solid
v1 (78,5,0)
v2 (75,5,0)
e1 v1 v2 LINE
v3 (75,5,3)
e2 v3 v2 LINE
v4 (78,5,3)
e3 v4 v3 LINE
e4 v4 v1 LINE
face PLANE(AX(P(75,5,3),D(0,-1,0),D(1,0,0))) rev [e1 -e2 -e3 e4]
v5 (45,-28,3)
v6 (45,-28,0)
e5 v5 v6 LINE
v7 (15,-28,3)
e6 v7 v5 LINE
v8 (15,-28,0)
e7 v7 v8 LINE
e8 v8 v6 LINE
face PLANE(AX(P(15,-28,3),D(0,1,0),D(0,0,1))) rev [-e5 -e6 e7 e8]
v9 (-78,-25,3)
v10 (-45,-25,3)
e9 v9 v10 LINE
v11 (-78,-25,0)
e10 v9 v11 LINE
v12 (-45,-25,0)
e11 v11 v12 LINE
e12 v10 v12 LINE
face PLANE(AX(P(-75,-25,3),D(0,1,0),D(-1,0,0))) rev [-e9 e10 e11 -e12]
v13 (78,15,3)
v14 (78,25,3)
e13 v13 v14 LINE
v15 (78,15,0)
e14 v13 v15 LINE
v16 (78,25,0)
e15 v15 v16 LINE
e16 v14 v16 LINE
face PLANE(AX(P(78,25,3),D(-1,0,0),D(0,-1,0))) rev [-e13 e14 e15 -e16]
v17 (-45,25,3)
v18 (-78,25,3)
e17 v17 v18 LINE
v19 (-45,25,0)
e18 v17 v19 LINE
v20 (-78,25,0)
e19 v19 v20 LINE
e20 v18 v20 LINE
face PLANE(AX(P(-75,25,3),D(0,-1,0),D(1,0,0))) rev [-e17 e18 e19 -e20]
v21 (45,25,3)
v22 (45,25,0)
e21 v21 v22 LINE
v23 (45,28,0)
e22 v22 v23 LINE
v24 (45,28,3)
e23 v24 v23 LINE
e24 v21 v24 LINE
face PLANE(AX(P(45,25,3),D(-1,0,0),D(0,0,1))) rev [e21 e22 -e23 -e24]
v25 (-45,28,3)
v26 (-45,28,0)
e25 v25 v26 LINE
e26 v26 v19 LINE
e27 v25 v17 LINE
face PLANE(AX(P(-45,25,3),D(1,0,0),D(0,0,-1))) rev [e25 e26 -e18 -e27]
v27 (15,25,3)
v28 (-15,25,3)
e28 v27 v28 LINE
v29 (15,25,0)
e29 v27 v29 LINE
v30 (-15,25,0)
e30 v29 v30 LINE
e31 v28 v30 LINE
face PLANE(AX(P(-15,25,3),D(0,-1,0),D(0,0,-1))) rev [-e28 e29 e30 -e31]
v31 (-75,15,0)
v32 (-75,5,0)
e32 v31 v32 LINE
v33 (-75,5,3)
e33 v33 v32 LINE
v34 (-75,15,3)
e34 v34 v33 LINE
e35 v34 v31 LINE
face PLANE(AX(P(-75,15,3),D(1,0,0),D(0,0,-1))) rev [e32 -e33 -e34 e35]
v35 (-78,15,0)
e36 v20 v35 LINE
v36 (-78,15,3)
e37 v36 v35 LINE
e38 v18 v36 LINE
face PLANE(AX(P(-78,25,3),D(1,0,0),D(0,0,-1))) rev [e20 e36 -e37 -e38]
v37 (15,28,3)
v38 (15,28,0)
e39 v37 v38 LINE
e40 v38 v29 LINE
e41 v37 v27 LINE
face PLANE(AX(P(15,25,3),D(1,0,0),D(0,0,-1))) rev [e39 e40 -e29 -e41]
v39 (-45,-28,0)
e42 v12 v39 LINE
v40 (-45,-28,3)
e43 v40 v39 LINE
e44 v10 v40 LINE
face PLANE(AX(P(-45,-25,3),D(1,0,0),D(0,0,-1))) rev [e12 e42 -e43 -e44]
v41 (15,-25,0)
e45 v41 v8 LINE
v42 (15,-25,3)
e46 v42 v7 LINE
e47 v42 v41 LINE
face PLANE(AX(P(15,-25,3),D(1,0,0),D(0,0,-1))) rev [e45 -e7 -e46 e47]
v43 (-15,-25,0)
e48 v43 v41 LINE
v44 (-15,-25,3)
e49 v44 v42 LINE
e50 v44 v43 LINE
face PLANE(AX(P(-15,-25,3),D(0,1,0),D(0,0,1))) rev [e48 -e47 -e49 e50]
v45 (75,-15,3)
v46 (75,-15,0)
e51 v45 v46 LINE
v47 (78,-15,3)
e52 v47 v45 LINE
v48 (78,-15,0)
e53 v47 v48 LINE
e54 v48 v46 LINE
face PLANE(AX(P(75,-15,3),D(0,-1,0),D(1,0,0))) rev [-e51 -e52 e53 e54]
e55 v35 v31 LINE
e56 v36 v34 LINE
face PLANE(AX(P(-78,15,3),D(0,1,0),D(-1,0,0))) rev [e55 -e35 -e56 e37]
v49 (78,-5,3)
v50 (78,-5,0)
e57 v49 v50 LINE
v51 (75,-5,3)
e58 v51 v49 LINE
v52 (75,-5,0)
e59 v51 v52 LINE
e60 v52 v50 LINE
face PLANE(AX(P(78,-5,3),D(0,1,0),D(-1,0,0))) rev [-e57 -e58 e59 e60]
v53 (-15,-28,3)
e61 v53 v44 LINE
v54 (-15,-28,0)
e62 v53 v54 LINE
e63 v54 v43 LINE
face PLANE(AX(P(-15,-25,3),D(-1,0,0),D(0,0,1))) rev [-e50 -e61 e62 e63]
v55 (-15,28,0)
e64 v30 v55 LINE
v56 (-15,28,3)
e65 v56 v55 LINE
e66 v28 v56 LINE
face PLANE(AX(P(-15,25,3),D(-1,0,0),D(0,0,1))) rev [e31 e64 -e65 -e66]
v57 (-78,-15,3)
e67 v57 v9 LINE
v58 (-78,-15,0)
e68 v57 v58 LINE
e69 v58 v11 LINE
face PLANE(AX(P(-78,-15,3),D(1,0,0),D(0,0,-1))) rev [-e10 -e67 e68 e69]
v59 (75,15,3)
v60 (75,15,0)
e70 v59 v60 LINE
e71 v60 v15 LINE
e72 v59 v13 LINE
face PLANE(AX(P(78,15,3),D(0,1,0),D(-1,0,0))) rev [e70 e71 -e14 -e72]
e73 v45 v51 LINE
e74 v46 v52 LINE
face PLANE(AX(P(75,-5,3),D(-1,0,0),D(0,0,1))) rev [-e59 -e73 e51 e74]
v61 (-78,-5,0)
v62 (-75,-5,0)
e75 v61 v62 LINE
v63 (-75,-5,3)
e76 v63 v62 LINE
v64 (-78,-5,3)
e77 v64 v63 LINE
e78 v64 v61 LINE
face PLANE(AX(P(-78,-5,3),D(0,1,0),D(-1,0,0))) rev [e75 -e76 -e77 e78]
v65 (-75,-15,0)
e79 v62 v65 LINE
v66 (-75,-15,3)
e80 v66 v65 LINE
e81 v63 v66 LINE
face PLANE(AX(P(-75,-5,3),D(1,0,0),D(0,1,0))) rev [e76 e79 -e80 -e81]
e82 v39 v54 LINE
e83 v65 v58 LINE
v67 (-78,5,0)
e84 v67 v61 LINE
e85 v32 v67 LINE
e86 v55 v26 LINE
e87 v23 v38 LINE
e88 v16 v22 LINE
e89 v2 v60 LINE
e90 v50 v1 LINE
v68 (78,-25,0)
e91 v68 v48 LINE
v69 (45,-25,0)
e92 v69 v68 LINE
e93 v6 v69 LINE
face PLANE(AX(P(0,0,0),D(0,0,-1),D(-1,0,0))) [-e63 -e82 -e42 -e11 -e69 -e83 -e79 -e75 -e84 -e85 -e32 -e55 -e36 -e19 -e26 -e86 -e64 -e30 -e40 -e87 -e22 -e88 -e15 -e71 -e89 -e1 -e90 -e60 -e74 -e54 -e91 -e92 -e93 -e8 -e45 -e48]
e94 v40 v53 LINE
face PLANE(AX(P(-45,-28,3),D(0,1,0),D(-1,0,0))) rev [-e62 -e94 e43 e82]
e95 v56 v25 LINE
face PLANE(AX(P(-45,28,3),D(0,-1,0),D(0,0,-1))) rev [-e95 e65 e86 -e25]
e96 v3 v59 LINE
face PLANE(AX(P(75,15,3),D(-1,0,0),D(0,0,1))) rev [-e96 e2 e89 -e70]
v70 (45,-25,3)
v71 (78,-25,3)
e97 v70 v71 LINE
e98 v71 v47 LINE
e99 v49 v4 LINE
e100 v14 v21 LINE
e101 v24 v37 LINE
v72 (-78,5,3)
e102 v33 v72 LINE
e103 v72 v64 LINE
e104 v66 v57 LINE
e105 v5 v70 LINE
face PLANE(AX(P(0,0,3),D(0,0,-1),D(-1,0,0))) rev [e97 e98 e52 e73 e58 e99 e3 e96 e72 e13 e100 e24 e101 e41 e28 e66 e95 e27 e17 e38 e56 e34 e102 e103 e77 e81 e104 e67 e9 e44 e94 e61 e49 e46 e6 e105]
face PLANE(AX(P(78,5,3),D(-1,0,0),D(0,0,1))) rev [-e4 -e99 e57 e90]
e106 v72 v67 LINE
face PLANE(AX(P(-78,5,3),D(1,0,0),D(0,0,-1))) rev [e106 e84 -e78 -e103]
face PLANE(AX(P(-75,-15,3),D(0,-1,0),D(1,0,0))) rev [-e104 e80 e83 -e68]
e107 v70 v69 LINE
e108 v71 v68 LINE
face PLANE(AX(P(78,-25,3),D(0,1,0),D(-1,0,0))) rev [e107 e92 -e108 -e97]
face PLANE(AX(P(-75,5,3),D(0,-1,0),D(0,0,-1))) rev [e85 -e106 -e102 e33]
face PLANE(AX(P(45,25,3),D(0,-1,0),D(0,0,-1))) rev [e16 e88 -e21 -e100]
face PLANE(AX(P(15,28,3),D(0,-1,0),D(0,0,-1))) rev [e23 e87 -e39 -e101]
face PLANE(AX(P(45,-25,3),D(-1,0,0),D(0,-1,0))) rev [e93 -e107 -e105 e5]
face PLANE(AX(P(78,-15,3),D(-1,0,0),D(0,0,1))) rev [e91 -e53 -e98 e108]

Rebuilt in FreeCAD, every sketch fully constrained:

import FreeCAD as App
import Part
import Sketcher


def add_polygon(sketch, points):
    """Adds a closed chain of lines whose ends are joined by coincident constraints."""
    first, n = sketch.GeometryCount, len(points)
    for a, b in zip(points, points[1:] + points[:1]):
        sketch.addGeometry(Part.LineSegment(App.Vector(*a, 0), App.Vector(*b, 0)), False)
    for i in range(n):
        sketch.addConstraint(Sketcher.Constraint("Coincident", first + i, 2, first + (i + 1) % n, 1))

doc = App.newDocument("Part")
params = doc.addObject("Spreadsheet::Sheet", "Params")
for row, (alias, value) in enumerate([
    ("sketch1_width", "33 mm"),
    ("sketch1_width2", "30 mm"),
    ("sketch1_width3", "3 mm"),
    ("sketch1_height", "10 mm"),
    ("pad1_length", "3 mm"),
], start=1):
    params.set(f"A{row}", alias)
    params.set(f"B{row}", "=" + value)
    params.setAlias(f"B{row}", alias)

body = doc.addObject("PartDesign::Body", "Body")

sketch1 = body.newObject("Sketcher::SketchObject", "Sketch")
sketch1.AttachmentSupport = (doc.getObject("XY_Plane"), [""])
sketch1.MapMode = "FlatFace"
add_polygon(sketch1, [(78, 25), (45, 25), (45, 28), (15, 28), (15, 25), (-15, 25), (-15, 28), (-45, 28), (-45, 25), (-78, 25), (-78, 15), (-75, 15), (-75, 5), (-78, 5), (-78, -5), (-75, -5), (-75, -15), (-78, -15), (-78, -25), (-45, -25), (-45, -28), (-15, -28), (-15, -25), (15, -25), (15, -28), (45, -28), (45, -25), (78, -25), (78, -15), (75, -15), (75, -5), (78, -5), (78, 5), (75, 5), (75, 15), (78, 15)])
sketch1.addConstraint([
    Sketcher.Constraint("Horizontal", 0),
    Sketcher.Constraint("Vertical", 1),
    Sketcher.Constraint("Horizontal", 2),
    Sketcher.Constraint("Vertical", 3),
    Sketcher.Constraint("Horizontal", 4),
    Sketcher.Constraint("Vertical", 5),
    Sketcher.Constraint("Horizontal", 6),
    Sketcher.Constraint("Vertical", 7),
    Sketcher.Constraint("Horizontal", 8),
    Sketcher.Constraint("Vertical", 9),
    Sketcher.Constraint("Horizontal", 10),
    Sketcher.Constraint("Vertical", 11),
    Sketcher.Constraint("Horizontal", 12),
    Sketcher.Constraint("Vertical", 13),
    Sketcher.Constraint("Horizontal", 14),
    Sketcher.Constraint("Vertical", 15),
    Sketcher.Constraint("Horizontal", 16),
    Sketcher.Constraint("Vertical", 17),
    Sketcher.Constraint("Horizontal", 18),
    Sketcher.Constraint("Vertical", 19),
    Sketcher.Constraint("Horizontal", 20),
    Sketcher.Constraint("Vertical", 21),
    Sketcher.Constraint("Horizontal", 22),
    Sketcher.Constraint("Vertical", 23),
    Sketcher.Constraint("Horizontal", 24),
    Sketcher.Constraint("Vertical", 25),
    Sketcher.Constraint("Horizontal", 26),
    Sketcher.Constraint("Vertical", 27),
    Sketcher.Constraint("Horizontal", 28),
    Sketcher.Constraint("Vertical", 29),
    Sketcher.Constraint("Horizontal", 30),
    Sketcher.Constraint("Vertical", 31),
    Sketcher.Constraint("Horizontal", 32),
    Sketcher.Constraint("Vertical", 33),
    Sketcher.Constraint("Horizontal", 34),
    Sketcher.Constraint("Vertical", 35),
    Sketcher.Constraint("Symmetric", 0, 2, 18, 2, -1, 1),
    Sketcher.Constraint("Symmetric", 2, 2, 20, 2, -1, 1),
    Sketcher.Constraint("Symmetric", 4, 2, 22, 2, -1, 1),
    Sketcher.Constraint("Symmetric", 6, 2, 24, 2, -1, 1),
    Sketcher.Constraint("Symmetric", 8, 2, 26, 2, -1, 1),
    Sketcher.Constraint("Symmetric", 10, 2, 28, 2, -1, 1),
    Sketcher.Constraint("Symmetric", 12, 2, 30, 2, -1, 1),
    Sketcher.Constraint("Symmetric", 14, 2, 32, 2, -1, 1),
    Sketcher.Constraint("Symmetric", 16, 2, 34, 2, -1, 1),
    Sketcher.Constraint("Symmetric", 2, 2, 5, 2, -2),
    Sketcher.Constraint("Symmetric", 0, 2, 7, 2, -2),
    Sketcher.Constraint("Symmetric", 16, 2, 27, 2, -2),
    Sketcher.Constraint("Symmetric", 14, 2, 29, 2, -2),
    Sketcher.Constraint("Horizontal", 0, 2, 3, 2),
    Sketcher.Constraint("Vertical", 9, 2, 12, 2),
    Sketcher.Constraint("Equal", 2, 4),
    Sketcher.Constraint("Equal", 34, 1),
    Sketcher.Constraint("Equal", 9, 11),
    Sketcher.Constraint("Equal", 11, 13),
    Sketcher.Constraint("DistanceX", 0, 2, 0, 1, 33.0),
    Sketcher.Constraint("DistanceX", 2, 2, 2, 1, 30.0),
    Sketcher.Constraint("DistanceX", 10, 1, 10, 2, 3.0),
    Sketcher.Constraint("DistanceY", 9, 2, 9, 1, 10.0),
])
sketch1.setExpression("Constraints[91]", "Params.sketch1_width")
sketch1.setExpression("Constraints[92]", "Params.sketch1_width2")
sketch1.setExpression("Constraints[93]", "Params.sketch1_width3")
sketch1.setExpression("Constraints[94]", "Params.sketch1_height")
pad1 = body.newObject("PartDesign::Pad", "Pad")
pad1.Profile = sketch1
pad1.setExpression("Length", "Params.pad1_length")

doc.recompute()
